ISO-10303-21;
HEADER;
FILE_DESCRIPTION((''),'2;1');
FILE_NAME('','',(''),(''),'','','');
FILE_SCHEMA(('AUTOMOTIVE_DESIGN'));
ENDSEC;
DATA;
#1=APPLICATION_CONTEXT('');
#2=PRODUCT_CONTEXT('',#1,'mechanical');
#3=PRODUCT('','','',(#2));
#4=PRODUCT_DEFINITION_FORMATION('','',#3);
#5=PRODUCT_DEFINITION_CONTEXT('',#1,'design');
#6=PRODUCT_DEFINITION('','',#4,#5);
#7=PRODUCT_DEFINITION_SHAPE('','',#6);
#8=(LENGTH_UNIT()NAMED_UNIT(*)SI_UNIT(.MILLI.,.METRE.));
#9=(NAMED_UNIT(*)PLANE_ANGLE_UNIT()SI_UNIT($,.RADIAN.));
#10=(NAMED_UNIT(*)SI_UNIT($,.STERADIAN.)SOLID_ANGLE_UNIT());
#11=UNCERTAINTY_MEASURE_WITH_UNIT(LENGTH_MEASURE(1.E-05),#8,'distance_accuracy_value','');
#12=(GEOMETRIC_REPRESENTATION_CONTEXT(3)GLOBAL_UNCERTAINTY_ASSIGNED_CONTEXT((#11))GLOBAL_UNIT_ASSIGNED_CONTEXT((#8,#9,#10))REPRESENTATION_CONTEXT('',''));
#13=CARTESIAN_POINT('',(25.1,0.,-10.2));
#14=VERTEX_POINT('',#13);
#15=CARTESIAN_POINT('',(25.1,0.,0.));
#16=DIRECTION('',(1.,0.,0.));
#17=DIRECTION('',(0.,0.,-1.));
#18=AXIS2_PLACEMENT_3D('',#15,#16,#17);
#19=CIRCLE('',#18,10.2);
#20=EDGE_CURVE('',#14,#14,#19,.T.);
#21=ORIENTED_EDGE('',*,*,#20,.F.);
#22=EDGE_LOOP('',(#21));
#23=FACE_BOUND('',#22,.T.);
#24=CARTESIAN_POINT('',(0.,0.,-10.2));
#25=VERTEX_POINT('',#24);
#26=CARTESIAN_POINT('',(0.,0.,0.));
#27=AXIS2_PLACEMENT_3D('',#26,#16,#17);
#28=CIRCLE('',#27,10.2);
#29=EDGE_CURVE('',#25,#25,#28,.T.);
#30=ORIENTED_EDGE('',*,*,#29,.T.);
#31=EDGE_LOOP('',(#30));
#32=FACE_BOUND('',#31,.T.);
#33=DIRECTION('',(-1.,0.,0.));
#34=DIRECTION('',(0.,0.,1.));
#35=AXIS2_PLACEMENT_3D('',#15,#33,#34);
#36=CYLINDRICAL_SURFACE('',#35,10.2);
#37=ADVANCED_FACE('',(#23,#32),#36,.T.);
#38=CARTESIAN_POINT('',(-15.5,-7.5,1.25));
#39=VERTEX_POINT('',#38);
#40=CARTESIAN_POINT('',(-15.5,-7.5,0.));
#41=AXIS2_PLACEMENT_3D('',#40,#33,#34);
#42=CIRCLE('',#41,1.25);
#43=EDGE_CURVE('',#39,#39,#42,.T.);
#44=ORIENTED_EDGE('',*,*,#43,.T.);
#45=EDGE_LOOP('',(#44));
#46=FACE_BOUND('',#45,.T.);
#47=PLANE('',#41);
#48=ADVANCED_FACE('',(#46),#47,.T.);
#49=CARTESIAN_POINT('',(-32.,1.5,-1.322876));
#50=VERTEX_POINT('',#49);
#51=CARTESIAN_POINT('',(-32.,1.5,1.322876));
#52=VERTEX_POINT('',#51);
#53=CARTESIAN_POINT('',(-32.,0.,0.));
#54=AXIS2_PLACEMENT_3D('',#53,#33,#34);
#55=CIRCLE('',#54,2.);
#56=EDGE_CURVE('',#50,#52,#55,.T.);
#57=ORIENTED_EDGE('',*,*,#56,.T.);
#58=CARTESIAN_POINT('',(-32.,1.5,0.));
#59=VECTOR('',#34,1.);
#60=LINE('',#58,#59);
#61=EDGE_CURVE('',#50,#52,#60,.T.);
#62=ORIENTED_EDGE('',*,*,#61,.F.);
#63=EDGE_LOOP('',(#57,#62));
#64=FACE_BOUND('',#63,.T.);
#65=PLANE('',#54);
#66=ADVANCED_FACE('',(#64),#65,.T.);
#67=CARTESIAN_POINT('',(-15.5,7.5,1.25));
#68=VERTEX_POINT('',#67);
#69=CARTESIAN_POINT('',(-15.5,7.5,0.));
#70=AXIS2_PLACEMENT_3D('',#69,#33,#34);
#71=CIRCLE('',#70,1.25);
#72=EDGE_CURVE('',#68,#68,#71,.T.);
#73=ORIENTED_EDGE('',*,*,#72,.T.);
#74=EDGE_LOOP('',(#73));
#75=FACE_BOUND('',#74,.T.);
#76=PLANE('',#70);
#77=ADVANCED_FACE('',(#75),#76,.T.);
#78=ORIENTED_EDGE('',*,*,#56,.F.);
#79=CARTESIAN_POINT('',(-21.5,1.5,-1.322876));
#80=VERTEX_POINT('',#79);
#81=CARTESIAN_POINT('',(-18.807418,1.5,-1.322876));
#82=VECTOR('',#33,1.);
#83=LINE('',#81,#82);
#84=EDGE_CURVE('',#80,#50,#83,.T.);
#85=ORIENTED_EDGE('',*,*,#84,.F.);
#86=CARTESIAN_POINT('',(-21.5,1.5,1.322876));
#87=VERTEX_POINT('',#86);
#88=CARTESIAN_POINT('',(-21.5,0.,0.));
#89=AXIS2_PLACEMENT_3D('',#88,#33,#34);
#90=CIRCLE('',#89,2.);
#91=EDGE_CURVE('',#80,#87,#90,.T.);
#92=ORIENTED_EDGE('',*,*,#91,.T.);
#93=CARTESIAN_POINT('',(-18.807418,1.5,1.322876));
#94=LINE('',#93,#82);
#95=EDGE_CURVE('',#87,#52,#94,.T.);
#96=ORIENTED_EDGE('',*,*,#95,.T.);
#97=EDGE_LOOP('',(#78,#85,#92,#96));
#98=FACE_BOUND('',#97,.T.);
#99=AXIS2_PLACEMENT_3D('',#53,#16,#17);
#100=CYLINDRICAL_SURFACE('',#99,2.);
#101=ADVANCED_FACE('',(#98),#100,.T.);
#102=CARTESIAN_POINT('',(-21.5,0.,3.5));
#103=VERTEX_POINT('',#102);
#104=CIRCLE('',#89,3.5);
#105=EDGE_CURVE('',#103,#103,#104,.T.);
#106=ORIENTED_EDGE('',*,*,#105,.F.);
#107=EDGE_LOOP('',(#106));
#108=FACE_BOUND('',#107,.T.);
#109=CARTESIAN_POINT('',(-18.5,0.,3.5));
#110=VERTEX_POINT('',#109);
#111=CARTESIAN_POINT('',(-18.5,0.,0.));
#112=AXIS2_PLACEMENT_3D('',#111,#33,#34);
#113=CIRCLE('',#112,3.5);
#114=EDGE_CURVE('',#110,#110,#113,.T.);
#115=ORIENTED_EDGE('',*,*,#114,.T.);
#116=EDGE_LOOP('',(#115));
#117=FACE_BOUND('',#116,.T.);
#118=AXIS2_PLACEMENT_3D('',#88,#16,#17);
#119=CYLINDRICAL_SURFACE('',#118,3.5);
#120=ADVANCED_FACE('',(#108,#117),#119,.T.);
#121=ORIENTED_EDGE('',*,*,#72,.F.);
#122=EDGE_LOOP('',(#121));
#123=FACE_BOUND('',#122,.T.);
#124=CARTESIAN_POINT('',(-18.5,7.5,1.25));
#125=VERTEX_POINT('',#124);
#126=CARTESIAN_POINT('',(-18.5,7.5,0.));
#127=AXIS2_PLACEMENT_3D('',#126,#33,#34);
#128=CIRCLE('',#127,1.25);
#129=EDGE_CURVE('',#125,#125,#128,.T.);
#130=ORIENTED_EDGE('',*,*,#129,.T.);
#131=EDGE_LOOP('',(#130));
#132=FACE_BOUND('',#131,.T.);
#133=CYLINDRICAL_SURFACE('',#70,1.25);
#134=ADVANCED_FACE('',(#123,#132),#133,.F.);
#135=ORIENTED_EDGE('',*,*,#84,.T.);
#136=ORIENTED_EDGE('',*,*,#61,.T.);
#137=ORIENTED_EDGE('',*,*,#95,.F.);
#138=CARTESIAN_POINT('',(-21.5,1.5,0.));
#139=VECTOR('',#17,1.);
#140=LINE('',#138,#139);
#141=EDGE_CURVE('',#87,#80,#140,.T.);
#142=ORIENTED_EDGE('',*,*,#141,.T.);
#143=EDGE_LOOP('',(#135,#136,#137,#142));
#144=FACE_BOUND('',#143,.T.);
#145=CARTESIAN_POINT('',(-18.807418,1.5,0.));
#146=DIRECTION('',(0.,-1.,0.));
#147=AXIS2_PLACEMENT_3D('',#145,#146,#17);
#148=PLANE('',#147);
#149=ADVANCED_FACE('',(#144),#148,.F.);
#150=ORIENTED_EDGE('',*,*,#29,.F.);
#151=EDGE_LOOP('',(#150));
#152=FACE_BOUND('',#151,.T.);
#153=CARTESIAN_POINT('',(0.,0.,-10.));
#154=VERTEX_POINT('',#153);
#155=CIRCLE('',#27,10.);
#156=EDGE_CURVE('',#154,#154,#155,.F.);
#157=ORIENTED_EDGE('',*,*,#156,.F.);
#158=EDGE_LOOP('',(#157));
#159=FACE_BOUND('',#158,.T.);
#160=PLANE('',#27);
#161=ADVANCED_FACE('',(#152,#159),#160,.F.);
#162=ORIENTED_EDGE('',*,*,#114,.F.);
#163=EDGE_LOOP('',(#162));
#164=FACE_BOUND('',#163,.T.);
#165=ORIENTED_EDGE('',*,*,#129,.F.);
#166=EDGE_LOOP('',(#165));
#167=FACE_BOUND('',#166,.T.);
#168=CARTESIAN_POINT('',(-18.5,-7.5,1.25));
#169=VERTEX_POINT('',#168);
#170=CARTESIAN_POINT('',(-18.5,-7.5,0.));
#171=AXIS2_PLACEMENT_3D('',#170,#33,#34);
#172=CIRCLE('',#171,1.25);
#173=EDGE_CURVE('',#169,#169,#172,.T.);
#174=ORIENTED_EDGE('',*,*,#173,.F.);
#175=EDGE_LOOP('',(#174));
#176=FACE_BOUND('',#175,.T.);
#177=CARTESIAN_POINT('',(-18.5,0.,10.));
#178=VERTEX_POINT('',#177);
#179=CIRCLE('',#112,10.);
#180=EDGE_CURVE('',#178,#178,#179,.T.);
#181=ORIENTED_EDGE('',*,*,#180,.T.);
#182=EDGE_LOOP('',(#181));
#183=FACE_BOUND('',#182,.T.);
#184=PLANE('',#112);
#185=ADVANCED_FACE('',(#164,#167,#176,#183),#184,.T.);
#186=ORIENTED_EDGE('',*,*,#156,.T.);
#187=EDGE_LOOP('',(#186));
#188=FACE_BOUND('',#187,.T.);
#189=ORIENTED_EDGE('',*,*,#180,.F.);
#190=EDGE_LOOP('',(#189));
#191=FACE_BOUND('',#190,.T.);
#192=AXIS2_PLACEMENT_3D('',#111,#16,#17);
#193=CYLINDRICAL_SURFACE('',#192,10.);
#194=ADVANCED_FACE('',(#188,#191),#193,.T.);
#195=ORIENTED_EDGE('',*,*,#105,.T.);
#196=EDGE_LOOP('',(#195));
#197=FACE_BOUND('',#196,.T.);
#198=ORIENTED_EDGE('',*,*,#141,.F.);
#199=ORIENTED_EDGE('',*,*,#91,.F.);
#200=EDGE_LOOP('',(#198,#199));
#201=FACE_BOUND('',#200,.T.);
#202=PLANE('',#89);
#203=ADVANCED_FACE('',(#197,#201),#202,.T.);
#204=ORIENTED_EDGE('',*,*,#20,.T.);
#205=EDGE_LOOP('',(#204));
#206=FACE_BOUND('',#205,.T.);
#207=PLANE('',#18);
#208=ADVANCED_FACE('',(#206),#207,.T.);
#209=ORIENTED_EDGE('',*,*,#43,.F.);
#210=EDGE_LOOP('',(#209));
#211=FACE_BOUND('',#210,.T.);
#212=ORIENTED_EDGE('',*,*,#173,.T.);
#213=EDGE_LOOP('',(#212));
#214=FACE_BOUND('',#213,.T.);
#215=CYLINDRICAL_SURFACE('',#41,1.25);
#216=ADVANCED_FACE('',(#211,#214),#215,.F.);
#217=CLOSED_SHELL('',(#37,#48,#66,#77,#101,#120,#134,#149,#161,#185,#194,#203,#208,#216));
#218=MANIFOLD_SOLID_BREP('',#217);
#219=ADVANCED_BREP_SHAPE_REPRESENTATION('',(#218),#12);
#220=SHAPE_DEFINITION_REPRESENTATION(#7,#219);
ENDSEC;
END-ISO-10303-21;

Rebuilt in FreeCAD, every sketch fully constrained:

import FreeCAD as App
import Part
import Sketcher
Q = App.Units.Quantity


def add_polygon(sketch, points):
    """Adds a closed chain of lines whose ends are joined by coincident constraints."""
    first, n = sketch.GeometryCount, len(points)
    for a, b in zip(points, points[1:] + points[:1]):
        sketch.addGeometry(Part.LineSegment(App.Vector(*a, 0), App.Vector(*b, 0)), False)
    for i in range(n):
        sketch.addConstraint(Sketcher.Constraint("Coincident", first + i, 2, first + (i + 1) % n, 1))

doc = App.newDocument("Part")
params = doc.addObject("Spreadsheet::Sheet", "Params")
for row, (alias, value) in enumerate([
    ("sketch1_diameter", "20.4 mm"),
    ("pad1_length", "25.1 mm"),
    ("sketch2_diameter", "20 mm"),
    ("pad2_length", "18.5 mm"),
    ("sketch3_diameter", "7 mm"),
    ("pad3_length", "3 mm"),
    ("sketch4_diameter", "4 mm"),
    ("pad4_length", "10.5 mm"),
    ("pocket1_length", "10.5 mm"),
    ("sketch6_diameter", "2.5 mm"),
    ("pocket2_length", "3 mm"),
], start=1):
    params.set(f"A{row}", alias)
    params.set(f"B{row}", "=" + value)
    params.setAlias(f"B{row}", alias)

body = doc.addObject("PartDesign::Body", "Body")

# Sketch on YZ plane
sketch1 = body.newObject("Sketcher::SketchObject", "Sketch")
sketch1.AttachmentSupport = (doc.getObject("YZ_Plane"), [""])
sketch1.MapMode = "FlatFace"
sketch1.addGeometry(Part.Circle(App.Vector(0, 0, 0), App.Vector(0, 0, 1), 10), False)
sketch1.addConstraint([
    Sketcher.Constraint("Coincident", 0, 3, -1, 1),
    Sketcher.Constraint("Diameter", 0, Q("20.4 mm")),
])
sketch1.setExpression("Constraints[1]", "Params.sketch1_diameter")
pad1 = body.newObject("PartDesign::Pad", "Pad")
pad1.Profile = sketch1
pad1.setExpression("Length", "Params.pad1_length")

# Sketch on YZ plane
sketch2 = body.newObject("Sketcher::SketchObject", "Sketch001")
sketch2.AttachmentSupport = (doc.getObject("YZ_Plane"), [""])
sketch2.MapMode = "FlatFace"
sketch2.addGeometry(Part.Circle(App.Vector(0, 0, 0), App.Vector(0, 0, 1), 10), False)
sketch2.addConstraint([
    Sketcher.Constraint("Coincident", 0, 3, -1, 1),
    Sketcher.Constraint("Diameter", 0, Q("20 mm")),
])
sketch2.setExpression("Constraints[1]", "Params.sketch2_diameter")
pad2 = body.newObject("PartDesign::Pad", "Pad001")
pad2.Profile = sketch2
pad2.setExpression("Length", "Params.pad2_length")
pad2.Reversed = True

# Sketch on YZ plane
sketch3 = body.newObject("Sketcher::SketchObject", "Sketch002")
sketch3.AttachmentSupport = (doc.getObject("YZ_Plane"), [""])
sketch3.MapMode = "FlatFace"
sketch3.AttachmentOffset = App.Placement(App.Vector(0, 0, -18.5), App.Rotation())
sketch3.addGeometry(Part.Circle(App.Vector(0, 0, 0), App.Vector(0, 0, 1), 3.5), False)
sketch3.addConstraint([
    Sketcher.Constraint("Coincident", 0, 3, -1, 1),
    Sketcher.Constraint("Diameter", 0, Q("7 mm")),
])
sketch3.setExpression("Constraints[1]", "Params.sketch3_diameter")
pad3 = body.newObject("PartDesign::Pad", "Pad002")
pad3.Profile = sketch3
pad3.setExpression("Length", "Params.pad3_length")
pad3.Reversed = True

# Sketch on YZ plane
sketch4 = body.newObject("Sketcher::SketchObject", "Sketch003")
sketch4.AttachmentSupport = (doc.getObject("YZ_Plane"), [""])
sketch4.MapMode = "FlatFace"
sketch4.AttachmentOffset = App.Placement(App.Vector(0, 0, -21.5), App.Rotation())
sketch4.addGeometry(Part.Circle(App.Vector(0, 0, 0), App.Vector(0, 0, 1), 2), False)
sketch4.addConstraint([
    Sketcher.Constraint("Coincident", 0, 3, -1, 1),
    Sketcher.Constraint("Diameter", 0, Q("4 mm")),
])
sketch4.setExpression("Constraints[1]", "Params.sketch4_diameter")
pad4 = body.newObject("PartDesign::Pad", "Pad003")
pad4.Profile = sketch4
pad4.setExpression("Length", "Params.pad4_length")
pad4.Reversed = True

# Sketch on YZ plane
sketch5 = body.newObject("Sketcher::SketchObject", "Sketch004")
sketch5.AttachmentSupport = (doc.getObject("YZ_Plane"), [""])
sketch5.MapMode = "FlatFace"
sketch5.AttachmentOffset = App.Placement(App.Vector(0, 0, -32), App.Rotation())
add_polygon(sketch5, [(2, -44), (2, 44), (87, 44), (87, -44)])  # lines 0-3
sketch5.addConstraint([
    Sketcher.Constraint("Vertical", 0),
    Sketcher.Constraint("Horizontal", 1),
    Sketcher.Constraint("Vertical", 2),
    Sketcher.Constraint("Horizontal", 3),
    Sketcher.Constraint("DistanceX", -1, 1, 0, 2, Q("1.5 mm")),
    Sketcher.Constraint("DistanceX", 1, 1, 1, 2, Q("85.686122 mm")),
    Sketcher.Constraint("DistanceY", 0, 1, 0, 2, Q("88.331873 mm")),
    Sketcher.Constraint("DistanceY", -1, 1, 0, 2, Q("44.165937 mm")),
])
pocket1 = body.newObject("PartDesign::Pocket", "Pocket")
pocket1.Profile = sketch5
pocket1.setExpression("Length", "Params.pocket1_length")
pocket1.Reversed = True

# Sketch on YZ plane
sketch6 = body.newObject("Sketcher::SketchObject", "Sketch005")
sketch6.AttachmentSupport = (doc.getObject("YZ_Plane"), [""])
sketch6.MapMode = "FlatFace"
sketch6.AttachmentOffset = App.Placement(App.Vector(0, 0, -18.5), App.Rotation())
sketch6.addGeometry([
    Part.Circle(App.Vector(7.5, 0, 0), App.Vector(0, 0, 1), 1.2),
    Part.Circle(App.Vector(-7.5, 0, 0), App.Vector(0, 0, 1), 1.2),
], False)
sketch6.addConstraint([
    Sketcher.Constraint("Equal", 0, 1),
    Sketcher.Constraint("Symmetric", 0, 3, 1, 3, -1, 1),
    Sketcher.Constraint("PointOnObject", 0, 3, -1),
    Sketcher.Constraint("Diameter", 0, Q("2.5 mm")),
    Sketcher.Constraint("DistanceX", 1, 3, 0, 3, Q("15 mm")),
])
sketch6.setExpression("Constraints[3]", "Params.sketch6_diameter")
pocket2 = body.newObject("PartDesign::Pocket", "Pocket001")
pocket2.Profile = sketch6
pocket2.setExpression("Length", "Params.pocket2_length")
pocket2.Reversed = True

doc.recompute()
